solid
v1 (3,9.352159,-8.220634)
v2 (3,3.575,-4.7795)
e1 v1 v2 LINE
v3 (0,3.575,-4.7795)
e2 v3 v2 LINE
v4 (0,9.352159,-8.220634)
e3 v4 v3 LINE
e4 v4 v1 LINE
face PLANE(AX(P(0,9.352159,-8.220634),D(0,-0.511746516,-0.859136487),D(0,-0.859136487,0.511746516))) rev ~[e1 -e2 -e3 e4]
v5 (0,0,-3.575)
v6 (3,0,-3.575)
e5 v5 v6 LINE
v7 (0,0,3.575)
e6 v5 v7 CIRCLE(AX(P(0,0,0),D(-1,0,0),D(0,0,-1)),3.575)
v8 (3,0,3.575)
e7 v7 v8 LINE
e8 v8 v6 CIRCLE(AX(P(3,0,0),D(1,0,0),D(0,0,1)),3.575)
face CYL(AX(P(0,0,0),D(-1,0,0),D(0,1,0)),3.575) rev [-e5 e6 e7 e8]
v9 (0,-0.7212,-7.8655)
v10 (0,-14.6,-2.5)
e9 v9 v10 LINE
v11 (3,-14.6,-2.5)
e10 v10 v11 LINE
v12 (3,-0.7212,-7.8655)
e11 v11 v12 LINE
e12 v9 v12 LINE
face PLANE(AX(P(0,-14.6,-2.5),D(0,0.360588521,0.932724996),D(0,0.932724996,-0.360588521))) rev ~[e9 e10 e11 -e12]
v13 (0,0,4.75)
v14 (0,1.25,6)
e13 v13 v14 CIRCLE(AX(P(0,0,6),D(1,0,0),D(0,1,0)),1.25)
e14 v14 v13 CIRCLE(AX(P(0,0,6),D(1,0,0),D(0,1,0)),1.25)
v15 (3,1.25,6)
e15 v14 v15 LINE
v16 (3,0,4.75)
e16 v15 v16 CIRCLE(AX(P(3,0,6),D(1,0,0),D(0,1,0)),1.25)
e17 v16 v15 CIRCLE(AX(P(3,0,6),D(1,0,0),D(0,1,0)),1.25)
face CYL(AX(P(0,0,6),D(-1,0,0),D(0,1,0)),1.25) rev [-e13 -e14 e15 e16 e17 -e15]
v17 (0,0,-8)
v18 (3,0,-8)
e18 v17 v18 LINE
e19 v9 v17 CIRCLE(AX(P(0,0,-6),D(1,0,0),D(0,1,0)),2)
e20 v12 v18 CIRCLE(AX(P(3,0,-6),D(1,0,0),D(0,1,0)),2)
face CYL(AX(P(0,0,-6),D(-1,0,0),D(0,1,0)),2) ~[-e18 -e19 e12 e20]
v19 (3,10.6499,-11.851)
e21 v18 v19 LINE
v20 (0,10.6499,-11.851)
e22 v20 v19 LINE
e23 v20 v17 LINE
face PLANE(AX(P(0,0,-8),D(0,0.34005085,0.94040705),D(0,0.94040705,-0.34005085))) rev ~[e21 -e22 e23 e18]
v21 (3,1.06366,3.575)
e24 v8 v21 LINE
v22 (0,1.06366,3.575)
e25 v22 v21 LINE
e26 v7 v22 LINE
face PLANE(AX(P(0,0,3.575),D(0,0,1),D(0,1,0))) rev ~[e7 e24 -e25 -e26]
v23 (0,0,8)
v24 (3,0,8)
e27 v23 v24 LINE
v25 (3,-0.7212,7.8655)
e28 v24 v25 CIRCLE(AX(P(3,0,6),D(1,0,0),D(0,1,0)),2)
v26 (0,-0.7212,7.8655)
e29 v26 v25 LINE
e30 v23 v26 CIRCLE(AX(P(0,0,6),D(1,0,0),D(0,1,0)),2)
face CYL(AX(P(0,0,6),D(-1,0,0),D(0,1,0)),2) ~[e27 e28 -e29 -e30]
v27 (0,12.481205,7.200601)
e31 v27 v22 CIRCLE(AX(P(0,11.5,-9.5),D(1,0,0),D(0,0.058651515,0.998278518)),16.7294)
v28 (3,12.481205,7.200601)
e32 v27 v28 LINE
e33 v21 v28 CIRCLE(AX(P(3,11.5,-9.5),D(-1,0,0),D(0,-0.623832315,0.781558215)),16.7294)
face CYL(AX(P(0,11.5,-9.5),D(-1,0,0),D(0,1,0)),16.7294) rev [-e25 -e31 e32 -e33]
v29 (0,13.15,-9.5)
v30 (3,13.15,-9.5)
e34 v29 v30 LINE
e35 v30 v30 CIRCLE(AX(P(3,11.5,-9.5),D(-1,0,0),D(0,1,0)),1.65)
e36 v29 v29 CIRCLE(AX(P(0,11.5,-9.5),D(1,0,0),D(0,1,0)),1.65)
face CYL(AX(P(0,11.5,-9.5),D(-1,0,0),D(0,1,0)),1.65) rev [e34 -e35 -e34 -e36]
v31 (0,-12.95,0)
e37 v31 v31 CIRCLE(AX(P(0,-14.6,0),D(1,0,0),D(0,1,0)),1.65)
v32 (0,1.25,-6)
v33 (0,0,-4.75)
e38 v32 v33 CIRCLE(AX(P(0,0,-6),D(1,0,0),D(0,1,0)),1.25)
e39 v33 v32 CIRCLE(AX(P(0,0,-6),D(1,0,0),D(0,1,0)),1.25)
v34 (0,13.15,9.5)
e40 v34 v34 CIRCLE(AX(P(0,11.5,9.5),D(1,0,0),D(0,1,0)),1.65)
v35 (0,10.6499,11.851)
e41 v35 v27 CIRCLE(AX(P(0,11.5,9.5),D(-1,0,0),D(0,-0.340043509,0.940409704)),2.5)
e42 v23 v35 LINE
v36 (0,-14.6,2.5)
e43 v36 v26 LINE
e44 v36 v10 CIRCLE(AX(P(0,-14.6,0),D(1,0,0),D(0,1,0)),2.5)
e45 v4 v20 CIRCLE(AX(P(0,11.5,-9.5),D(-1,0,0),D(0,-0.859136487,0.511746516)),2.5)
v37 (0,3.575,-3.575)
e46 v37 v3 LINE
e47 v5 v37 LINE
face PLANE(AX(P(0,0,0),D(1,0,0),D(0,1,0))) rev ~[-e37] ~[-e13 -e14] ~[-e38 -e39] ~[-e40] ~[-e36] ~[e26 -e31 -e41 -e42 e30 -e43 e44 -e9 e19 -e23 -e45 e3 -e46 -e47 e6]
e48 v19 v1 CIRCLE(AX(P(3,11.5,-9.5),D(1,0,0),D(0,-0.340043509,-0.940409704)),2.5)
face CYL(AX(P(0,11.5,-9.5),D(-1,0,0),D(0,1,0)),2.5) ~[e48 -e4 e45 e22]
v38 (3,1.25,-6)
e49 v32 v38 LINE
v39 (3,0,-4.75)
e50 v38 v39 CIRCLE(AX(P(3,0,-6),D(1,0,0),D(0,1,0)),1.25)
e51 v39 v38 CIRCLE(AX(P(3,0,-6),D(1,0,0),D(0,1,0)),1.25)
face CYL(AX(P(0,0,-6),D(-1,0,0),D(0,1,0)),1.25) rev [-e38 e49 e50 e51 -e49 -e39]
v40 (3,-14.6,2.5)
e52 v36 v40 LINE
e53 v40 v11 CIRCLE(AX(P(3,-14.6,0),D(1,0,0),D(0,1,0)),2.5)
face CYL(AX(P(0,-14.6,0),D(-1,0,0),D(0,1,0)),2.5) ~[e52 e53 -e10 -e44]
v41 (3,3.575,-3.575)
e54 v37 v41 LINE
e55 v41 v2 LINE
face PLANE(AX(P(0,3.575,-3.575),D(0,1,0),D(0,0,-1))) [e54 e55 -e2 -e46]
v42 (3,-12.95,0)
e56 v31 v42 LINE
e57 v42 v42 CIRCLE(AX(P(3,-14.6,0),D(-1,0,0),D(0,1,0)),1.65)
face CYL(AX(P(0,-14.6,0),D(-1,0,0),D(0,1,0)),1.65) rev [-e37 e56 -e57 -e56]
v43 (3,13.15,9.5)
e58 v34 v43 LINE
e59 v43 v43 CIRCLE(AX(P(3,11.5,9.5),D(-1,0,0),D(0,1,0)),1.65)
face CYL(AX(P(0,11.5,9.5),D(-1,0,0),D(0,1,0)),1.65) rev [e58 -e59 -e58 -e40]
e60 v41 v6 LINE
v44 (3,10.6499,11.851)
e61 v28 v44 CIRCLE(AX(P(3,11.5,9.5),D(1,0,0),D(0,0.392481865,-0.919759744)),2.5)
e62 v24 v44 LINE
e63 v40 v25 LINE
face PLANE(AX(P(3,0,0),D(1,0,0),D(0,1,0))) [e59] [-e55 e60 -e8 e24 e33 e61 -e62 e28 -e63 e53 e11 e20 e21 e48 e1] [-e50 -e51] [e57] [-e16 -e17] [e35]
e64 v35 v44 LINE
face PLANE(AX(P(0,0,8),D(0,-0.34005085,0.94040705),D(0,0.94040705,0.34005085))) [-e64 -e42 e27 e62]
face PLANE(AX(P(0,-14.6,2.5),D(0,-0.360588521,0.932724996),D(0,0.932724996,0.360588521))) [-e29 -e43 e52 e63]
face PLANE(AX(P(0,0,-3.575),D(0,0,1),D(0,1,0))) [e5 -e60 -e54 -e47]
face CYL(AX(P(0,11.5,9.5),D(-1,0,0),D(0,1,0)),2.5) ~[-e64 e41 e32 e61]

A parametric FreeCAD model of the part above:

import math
import FreeCAD as App
import Part
import Sketcher
Q = App.Units.Quantity

doc = App.newDocument("Part")
body = doc.addObject("PartDesign::Body", "Body")

# Sketch on YZ plane
sketch1 = body.newObject("Sketcher::SketchObject", "Sketch")
sketch1.AttachmentSupport = (doc.getObject("YZ_Plane"), [""])
sketch1.MapMode = "FlatFace"
sketch1.addGeometry([
    Part.LineSegment(App.Vector(0, 3.575, 0), App.Vector(1.06366, 3.575, 0)),  # 0
    Part.ArcOfCircle(Part.Circle(App.Vector(11.5, -9.5, 0), App.Vector(0, 0, 1), 16.7294), math.radians(86.637586), math.radians(128.596534)),  # 1
    Part.ArcOfCircle(Part.Circle(App.Vector(11.5, 9.5, 0), App.Vector(0, 0, 1), 2.5), math.radians(-66.890983), math.radians(109.879525)),  # 2
    Part.LineSegment(App.Vector(10.6499, 11.851, 0), App.Vector(0, 8, 0)),  # 3
    Part.ArcOfCircle(Part.Circle(App.Vector(0, 6, 0), App.Vector(0, 0, 1), 2), math.radians(90), math.radians(111.13644)),  # 4
    Part.LineSegment(App.Vector(-0.7212, 7.8655, 0), App.Vector(-14.6, 2.5, 0)),  # 5
    Part.ArcOfCircle(Part.Circle(App.Vector(-14.6, 0, 0), App.Vector(0, 0, 1), 2.5), math.radians(90), math.radians(270)),  # 6
    Part.LineSegment(App.Vector(-14.6, -2.5, 0), App.Vector(-0.7212, -7.8655, 0)),  # 7
    Part.ArcOfCircle(Part.Circle(App.Vector(0, -6, 0), App.Vector(0, 0, 1), 2), math.radians(-111.13644), math.radians(-90)),  # 8
    Part.LineSegment(App.Vector(0, -8, 0), App.Vector(10.6499, -11.851, 0)),  # 9
    Part.ArcOfCircle(Part.Circle(App.Vector(11.5, -9.5, 0), App.Vector(0, 0, 1), 2.5), math.radians(-109.879525), math.radians(149.219766)),  # 10
    Part.LineSegment(App.Vector(9.352159, -8.220634, 0), App.Vector(3.575019, -4.779468, 0)),  # 11
    Part.LineSegment(App.Vector(3.575, -4.7795, 0), App.Vector(3.575, -3.575, 0)),  # 12
    Part.LineSegment(App.Vector(3.575, -3.575, 0), App.Vector(0, -3.575, 0)),  # 13
    Part.ArcOfCircle(Part.Circle(App.Vector(0, 0, 0), App.Vector(0, 0, 1), 3.575), math.radians(90), math.radians(270)),  # 14
    Part.Circle(App.Vector(-14.6, 0, 0), App.Vector(0, 0, 1), 1.65),  # 15
    Part.Circle(App.Vector(0, 6, 0), App.Vector(0, 0, 1), 1.25),  # 16
    Part.Circle(App.Vector(11.5, 9.5, 0), App.Vector(0, 0, 1), 1.65),  # 17
    Part.Circle(App.Vector(0, -6, 0), App.Vector(0, 0, 1), 1.25),  # 18
    Part.Circle(App.Vector(11.5, -9.5, 0), App.Vector(0, 0, 1), 1.65),  # 19
], False)
sketch1.addConstraint([
    Sketcher.Constraint("Coincident", 0, 2, 1, 2),
    Sketcher.Constraint("Coincident", 1, 1, 2, 1),
    Sketcher.Constraint("Tangent", 2, 2, 3, 1),
    Sketcher.Constraint("Coincident", 3, 2, 4, 1),
    Sketcher.Constraint("Tangent", 4, 2, 5, 1),
    Sketcher.Constraint("Coincident", 5, 2, 6, 1),
    Sketcher.Constraint("Coincident", 6, 2, 7, 1),
    Sketcher.Constraint("Tangent", 7, 2, 8, 1),
    Sketcher.Constraint("Coincident", 8, 2, 9, 1),
    Sketcher.Constraint("Tangent", 9, 2, 10, 1),
    Sketcher.Constraint("Coincident", 10, 2, 11, 1),
    Sketcher.Constraint("Coincident", 11, 2, 12, 1),
    Sketcher.Constraint("Coincident", 12, 2, 13, 1),
    Sketcher.Constraint("Tangent", 13, 2, 14, 2),
    Sketcher.Constraint("Tangent", 14, 1, 0, 1),
    Sketcher.Constraint("Horizontal", 0),
    Sketcher.Constraint("Vertical", 12),
    Sketcher.Constraint("Horizontal", 13),
    Sketcher.Constraint("Coincident", 14, 3, -1, 1),
    Sketcher.Constraint("Coincident", 10, 3, 1, 3),
    Sketcher.Constraint("Coincident", 15, 3, 6, 3),
    Sketcher.Constraint("Coincident", 16, 3, 4, 3),
    Sketcher.Constraint("Coincident", 17, 3, 2, 3),
    Sketcher.Constraint("Coincident", 18, 3, 8, 3),
    Sketcher.Constraint("Coincident", 19, 3, 1, 3),
    Sketcher.Constraint("Equal", 2, 6),
    Sketcher.Constraint("Equal", 4, 8),
    Sketcher.Constraint("Equal", 6, 10),
    Sketcher.Constraint("Equal", 15, 17),
    Sketcher.Constraint("Equal", 16, 18),
    Sketcher.Constraint("Equal", 17, 19),
    Sketcher.Constraint("Symmetric", 4, 3, 8, 3, -1, 1),
    Sketcher.Constraint("Symmetric", 1, 3, 2, 3, -1),
    Sketcher.Constraint("Symmetric", 5, 2, 6, 2, -1),
    Sketcher.Constraint("PointOnObject", 4, 3, -2),
    Sketcher.Constraint("PointOnObject", 3, 2, -2),
    Sketcher.Constraint("PointOnObject", 8, 2, -2),
    Sketcher.Constraint("Vertical", 15, 3, 5, 2),
    Sketcher.Constraint("Radius", 4, Q("2 mm")),
    Sketcher.Constraint("Diameter", 15, Q("3.3 mm")),
    Sketcher.Constraint("Diameter", 16, Q("2.5 mm")),
    Sketcher.Constraint("Radius", 2, Q("2.5 mm")),
    Sketcher.Constraint("DistanceY", -1, 1, 4, 3, Q("6 mm")),
    Sketcher.Constraint("Radius", 14, Q("3.575 mm")),
    Sketcher.Constraint("DistanceY", 1, 3, 2, 3, Q("19 mm")),
    Sketcher.Constraint("DistanceX", -1, 1, 1, 3, Q("11.5 mm")),
    Sketcher.Constraint("DistanceX", 6, 3, -1, 1, Q("14.6 mm")),
    Sketcher.Constraint("Angle", 11, Q("149.2198 deg")),
    Sketcher.Constraint("Radius", 1, Q("16.7294 mm")),
    Sketcher.Constraint("DistanceX", 13, 2, 13, 1, Q("3.575 mm")),
    Sketcher.Constraint("DistanceY", 12, 1, 12, 2, Q("1.2045 mm")),
])
pad1 = body.newObject("PartDesign::Pad", "Pad")
pad1.Profile = sketch1
pad1.Length = 3

doc.recompute()
